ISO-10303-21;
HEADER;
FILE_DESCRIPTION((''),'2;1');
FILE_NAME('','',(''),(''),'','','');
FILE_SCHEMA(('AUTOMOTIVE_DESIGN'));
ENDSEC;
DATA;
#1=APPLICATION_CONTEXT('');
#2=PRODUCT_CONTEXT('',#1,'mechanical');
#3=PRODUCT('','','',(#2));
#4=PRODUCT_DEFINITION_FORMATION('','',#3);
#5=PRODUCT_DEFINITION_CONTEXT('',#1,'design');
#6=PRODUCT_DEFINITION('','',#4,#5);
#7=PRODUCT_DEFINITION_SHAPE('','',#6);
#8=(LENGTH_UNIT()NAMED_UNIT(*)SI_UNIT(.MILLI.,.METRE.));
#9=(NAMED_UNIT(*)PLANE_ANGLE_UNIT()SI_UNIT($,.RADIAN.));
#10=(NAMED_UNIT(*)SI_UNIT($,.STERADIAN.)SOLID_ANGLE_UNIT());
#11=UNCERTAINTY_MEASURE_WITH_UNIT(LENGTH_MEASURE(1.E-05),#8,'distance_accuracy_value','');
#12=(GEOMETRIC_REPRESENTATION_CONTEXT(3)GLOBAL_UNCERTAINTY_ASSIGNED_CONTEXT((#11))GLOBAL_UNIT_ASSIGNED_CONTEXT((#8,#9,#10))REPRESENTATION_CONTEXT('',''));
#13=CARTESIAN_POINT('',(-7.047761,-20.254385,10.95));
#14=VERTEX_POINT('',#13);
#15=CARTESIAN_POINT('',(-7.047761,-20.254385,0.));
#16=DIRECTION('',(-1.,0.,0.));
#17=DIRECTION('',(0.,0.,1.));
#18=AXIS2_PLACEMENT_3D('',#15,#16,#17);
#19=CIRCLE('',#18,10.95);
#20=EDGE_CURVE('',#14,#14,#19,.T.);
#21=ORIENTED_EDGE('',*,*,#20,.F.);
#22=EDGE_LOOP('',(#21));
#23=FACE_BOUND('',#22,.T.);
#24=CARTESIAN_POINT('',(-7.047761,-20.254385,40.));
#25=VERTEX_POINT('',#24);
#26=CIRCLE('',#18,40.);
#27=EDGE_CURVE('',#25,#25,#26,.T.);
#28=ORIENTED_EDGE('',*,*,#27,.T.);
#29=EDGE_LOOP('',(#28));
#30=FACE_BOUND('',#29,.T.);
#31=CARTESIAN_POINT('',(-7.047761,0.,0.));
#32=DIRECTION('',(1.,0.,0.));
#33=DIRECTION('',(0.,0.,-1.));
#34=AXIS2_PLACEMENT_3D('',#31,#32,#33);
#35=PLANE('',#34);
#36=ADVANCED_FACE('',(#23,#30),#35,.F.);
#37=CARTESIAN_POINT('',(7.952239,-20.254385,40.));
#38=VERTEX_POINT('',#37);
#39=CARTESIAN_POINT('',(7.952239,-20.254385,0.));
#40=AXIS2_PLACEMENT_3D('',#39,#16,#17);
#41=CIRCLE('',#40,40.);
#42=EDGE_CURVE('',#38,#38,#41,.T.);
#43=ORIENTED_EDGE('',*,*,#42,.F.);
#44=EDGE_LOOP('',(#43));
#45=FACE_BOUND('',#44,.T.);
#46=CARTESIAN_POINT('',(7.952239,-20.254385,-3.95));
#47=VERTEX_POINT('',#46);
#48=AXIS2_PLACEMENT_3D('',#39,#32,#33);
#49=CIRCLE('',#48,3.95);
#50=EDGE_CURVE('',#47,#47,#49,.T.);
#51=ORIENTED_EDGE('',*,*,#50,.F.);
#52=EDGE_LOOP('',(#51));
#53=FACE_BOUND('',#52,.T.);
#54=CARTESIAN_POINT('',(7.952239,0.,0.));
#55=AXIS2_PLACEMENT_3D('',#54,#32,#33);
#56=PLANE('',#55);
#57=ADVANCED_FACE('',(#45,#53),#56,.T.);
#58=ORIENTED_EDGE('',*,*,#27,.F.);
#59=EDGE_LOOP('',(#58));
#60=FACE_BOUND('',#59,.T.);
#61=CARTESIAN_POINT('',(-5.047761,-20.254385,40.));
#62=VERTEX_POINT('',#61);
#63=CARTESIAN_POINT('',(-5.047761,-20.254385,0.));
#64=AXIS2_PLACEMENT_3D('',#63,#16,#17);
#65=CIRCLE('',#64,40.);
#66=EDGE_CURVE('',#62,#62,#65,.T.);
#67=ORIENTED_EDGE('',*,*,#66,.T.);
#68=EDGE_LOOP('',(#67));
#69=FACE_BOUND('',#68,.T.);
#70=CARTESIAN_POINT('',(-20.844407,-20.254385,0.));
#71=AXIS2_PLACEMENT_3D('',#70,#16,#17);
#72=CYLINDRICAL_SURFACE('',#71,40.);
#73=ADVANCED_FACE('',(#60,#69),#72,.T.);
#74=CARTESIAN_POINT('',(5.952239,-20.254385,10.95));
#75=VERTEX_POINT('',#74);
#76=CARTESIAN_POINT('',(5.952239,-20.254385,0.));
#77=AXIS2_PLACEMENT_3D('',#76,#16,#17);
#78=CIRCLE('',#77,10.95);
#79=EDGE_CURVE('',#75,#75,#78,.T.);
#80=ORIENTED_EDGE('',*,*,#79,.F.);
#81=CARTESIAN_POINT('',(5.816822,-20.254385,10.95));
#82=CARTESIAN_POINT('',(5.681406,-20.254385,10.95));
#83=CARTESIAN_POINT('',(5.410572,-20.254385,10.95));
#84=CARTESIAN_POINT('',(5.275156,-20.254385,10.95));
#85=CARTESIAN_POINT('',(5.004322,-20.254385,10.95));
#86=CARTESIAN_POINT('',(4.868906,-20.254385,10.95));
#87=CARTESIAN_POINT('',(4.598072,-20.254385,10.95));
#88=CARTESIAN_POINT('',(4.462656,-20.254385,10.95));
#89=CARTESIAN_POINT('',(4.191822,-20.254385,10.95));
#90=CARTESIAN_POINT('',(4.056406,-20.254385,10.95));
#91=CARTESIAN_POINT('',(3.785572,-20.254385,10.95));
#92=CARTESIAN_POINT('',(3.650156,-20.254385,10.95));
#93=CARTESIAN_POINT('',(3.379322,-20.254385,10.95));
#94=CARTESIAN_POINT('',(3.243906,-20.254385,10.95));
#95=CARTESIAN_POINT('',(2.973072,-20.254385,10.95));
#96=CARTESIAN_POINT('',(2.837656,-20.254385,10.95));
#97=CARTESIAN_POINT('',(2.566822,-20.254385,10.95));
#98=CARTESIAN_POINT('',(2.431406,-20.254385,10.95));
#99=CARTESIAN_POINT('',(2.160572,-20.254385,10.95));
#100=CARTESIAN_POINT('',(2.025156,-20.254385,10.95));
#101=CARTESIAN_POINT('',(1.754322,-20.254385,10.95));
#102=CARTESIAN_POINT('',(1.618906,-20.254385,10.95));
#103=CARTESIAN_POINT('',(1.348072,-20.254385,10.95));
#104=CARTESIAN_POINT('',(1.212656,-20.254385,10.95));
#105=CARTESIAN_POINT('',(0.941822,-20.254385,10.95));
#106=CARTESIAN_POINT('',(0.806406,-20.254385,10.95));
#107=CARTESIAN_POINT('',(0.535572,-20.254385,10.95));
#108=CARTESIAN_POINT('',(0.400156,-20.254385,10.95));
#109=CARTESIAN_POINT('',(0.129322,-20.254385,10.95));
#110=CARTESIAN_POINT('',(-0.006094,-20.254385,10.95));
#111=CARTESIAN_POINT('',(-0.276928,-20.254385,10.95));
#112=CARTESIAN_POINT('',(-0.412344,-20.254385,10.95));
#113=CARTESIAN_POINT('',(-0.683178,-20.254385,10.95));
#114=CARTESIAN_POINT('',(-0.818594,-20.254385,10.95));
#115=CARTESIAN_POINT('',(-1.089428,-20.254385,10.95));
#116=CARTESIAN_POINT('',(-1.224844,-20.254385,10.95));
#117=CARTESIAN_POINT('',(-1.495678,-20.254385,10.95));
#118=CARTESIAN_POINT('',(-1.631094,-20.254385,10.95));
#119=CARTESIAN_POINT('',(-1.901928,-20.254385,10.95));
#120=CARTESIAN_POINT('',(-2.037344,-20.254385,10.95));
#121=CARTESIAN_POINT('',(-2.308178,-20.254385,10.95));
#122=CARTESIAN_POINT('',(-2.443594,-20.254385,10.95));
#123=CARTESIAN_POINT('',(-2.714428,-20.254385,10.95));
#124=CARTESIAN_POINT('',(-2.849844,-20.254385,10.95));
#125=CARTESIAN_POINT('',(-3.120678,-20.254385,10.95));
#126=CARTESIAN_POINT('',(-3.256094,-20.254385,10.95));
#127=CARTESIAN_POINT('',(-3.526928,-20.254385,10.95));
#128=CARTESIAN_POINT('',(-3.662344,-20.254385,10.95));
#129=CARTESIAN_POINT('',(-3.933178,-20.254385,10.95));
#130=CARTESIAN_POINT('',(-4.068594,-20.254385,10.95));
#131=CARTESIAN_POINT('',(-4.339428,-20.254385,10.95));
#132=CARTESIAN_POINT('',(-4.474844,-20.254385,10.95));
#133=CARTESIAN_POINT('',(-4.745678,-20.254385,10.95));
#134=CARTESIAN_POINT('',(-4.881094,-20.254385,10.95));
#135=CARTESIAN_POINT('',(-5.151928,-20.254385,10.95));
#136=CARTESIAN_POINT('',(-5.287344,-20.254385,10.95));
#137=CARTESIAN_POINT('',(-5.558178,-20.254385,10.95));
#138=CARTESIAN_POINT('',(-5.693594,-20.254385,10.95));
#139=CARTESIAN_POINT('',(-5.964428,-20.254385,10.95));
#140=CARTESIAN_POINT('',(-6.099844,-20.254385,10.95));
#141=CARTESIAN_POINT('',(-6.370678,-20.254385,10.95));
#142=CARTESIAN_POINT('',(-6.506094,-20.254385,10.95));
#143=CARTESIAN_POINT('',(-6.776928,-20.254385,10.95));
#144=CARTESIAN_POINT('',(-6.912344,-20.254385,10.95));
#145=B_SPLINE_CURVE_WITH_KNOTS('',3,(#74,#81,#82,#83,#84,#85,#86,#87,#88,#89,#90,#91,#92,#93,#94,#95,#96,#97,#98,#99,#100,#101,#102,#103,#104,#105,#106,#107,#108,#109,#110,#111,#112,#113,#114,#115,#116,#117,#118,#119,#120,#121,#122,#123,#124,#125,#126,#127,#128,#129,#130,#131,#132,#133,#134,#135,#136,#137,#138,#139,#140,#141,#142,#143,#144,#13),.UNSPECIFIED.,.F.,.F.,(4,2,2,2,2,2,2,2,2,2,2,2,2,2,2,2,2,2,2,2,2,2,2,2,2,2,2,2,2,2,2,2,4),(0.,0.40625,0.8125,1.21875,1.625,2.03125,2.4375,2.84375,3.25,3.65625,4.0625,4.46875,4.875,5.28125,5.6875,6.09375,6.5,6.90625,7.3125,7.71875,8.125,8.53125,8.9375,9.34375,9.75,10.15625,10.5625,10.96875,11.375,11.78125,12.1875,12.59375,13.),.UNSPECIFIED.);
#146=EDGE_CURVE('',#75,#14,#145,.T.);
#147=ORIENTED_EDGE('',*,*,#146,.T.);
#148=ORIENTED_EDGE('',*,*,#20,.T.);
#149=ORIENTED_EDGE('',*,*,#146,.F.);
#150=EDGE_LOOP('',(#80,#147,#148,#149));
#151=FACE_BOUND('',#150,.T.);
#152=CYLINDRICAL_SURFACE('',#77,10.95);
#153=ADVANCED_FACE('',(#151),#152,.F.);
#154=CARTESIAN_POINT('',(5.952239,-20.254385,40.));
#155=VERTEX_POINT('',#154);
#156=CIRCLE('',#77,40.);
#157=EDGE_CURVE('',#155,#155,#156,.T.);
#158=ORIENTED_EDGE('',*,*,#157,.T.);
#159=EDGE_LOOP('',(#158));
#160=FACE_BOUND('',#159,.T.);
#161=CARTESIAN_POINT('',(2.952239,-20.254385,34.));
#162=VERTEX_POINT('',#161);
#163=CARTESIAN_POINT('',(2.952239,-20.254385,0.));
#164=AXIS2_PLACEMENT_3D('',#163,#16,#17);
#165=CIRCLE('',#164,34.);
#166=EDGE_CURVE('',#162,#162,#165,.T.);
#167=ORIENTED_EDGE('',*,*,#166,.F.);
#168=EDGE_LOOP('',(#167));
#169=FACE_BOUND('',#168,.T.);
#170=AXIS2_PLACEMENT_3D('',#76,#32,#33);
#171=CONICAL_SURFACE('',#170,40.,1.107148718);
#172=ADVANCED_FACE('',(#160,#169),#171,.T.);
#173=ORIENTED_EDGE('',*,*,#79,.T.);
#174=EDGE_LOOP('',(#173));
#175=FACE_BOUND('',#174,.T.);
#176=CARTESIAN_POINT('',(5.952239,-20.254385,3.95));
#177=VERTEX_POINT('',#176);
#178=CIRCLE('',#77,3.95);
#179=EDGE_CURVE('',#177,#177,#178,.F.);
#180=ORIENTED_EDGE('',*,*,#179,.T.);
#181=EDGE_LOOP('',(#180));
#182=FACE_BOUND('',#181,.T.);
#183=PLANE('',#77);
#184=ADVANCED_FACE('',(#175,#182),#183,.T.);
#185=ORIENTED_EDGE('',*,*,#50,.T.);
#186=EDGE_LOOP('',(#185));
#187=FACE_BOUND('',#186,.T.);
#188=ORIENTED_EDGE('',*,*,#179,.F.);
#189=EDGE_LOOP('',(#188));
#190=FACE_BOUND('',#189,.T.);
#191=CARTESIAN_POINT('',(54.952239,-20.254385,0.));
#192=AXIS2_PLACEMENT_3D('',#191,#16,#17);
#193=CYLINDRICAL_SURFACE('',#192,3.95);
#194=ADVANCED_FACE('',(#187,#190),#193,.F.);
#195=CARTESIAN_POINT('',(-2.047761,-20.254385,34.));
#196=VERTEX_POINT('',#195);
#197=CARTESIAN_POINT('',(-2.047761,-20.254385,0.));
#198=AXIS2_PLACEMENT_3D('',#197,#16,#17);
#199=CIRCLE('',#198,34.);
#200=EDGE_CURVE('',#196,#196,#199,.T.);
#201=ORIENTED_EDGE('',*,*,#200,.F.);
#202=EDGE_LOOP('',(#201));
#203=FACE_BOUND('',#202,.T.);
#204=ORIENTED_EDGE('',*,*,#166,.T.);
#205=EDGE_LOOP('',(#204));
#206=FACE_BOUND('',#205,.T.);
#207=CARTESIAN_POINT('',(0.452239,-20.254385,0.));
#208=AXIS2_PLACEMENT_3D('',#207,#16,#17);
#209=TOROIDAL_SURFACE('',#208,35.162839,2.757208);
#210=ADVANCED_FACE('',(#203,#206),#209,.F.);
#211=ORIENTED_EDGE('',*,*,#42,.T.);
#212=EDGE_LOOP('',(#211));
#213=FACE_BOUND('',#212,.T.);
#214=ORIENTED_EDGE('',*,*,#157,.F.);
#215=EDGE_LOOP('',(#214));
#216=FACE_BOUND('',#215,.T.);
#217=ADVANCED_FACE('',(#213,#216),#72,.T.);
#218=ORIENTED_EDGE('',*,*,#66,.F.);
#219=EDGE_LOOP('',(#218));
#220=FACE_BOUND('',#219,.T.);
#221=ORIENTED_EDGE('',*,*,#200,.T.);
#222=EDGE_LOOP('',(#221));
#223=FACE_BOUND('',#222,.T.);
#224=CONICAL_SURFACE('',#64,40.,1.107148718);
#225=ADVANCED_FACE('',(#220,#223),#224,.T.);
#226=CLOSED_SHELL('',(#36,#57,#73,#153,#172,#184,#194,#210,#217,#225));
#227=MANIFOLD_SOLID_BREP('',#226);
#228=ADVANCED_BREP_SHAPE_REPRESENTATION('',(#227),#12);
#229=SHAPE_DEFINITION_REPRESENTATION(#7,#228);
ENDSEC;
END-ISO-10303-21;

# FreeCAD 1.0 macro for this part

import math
import FreeCAD as App
import Part
import Sketcher
from FreeCAD import Vector

doc = App.newDocument("Part")
body = doc.addObject("PartDesign::Body", "Body")

# Sketch on XY plane
sketch1 = doc.addObject("Sketcher::SketchObject", "Sketch")
body.addObject(sketch1)
sketch1.AttachmentSupport = (doc.XY_Plane, [""])
sketch1.MapMode = "FlatFace"
sketch1.addGeometry(Part.LineSegment(Vector(6, 19.7, 0), Vector(3, 13.7, 0)), False)
sketch1.addGeometry(Part.ArcOfCircle(Part.Circle(Vector(0.5, 14.9, 0), Vector(0, 0, 1), 2.8), math.radians(-155), math.radians(-25)), False)
sketch1.addGeometry(Part.LineSegment(Vector(-2, 13.7, 0), Vector(-5, 19.7, 0)), False)
sketch1.addGeometry(Part.LineSegment(Vector(-5, 19.7, 0), Vector(-7, 19.7, 0)), False)
sketch1.addGeometry(Part.LineSegment(Vector(-7, 19.7, 0), Vector(-7, -20.3, 0)), False)
sketch1.addGeometry(Part.LineSegment(Vector(-7, -20.3, 0), Vector(8, -20.3, 0)), False)
sketch1.addGeometry(Part.LineSegment(Vector(8, -20.3, 0), Vector(8, 19.7, 0)), False)
sketch1.addGeometry(Part.LineSegment(Vector(8, 19.7, 0), Vector(6, 19.7, 0)), False)
sketch1.addGeometry(Part.LineSegment(Vector(-7, -20.3, 0), Vector(8, -20.3, 0)), True)  # axis
sketch1.addConstraint(Sketcher.Constraint("Coincident", 0, 2, 1, 2))
sketch1.addConstraint(Sketcher.Constraint("Coincident", 1, 1, 2, 1))
sketch1.addConstraint(Sketcher.Constraint("Coincident", 2, 2, 3, 1))
sketch1.addConstraint(Sketcher.Constraint("Coincident", 3, 2, 4, 1))
sketch1.addConstraint(Sketcher.Constraint("Coincident", 4, 2, 5, 1))
sketch1.addConstraint(Sketcher.Constraint("Coincident", 5, 2, 6, 1))
sketch1.addConstraint(Sketcher.Constraint("Coincident", 6, 2, 7, 1))
sketch1.addConstraint(Sketcher.Constraint("Coincident", 7, 2, 0, 1))
sketch1.addConstraint(Sketcher.Constraint("Horizontal", 3))
sketch1.addConstraint(Sketcher.Constraint("Vertical", 4))
sketch1.addConstraint(Sketcher.Constraint("Horizontal", 5))
sketch1.addConstraint(Sketcher.Constraint("Vertical", 6))
sketch1.addConstraint(Sketcher.Constraint("Horizontal", 7))
sketch1.addConstraint(Sketcher.Constraint("Horizontal", 8))
sketch1.addConstraint(Sketcher.Constraint("Coincident", 8, 1, 4, 2))
sketch1.addConstraint(Sketcher.Constraint("Horizontal", 0, 2, 1, 1))
sketch1.addConstraint(Sketcher.Constraint("Horizontal", 3, 2, 6, 2))
sketch1.addConstraint(Sketcher.Constraint("Vertical", 6, 2, 8, 2))
sketch1.addConstraint(Sketcher.Constraint("Equal", 3, 7))
sketch1.addConstraint(Sketcher.Constraint("Equal", 0, 2))
sketch1.addConstraint(Sketcher.Constraint("DistanceX", 3, 2, 3, 1, 2.0))
sketch1.addConstraint(Sketcher.Constraint("DistanceX", 5, 1, 5, 2, 15.0))
sketch1.addConstraint(Sketcher.Constraint("DistanceY", 4, 2, 4, 1, 40.0))
sketch1.addConstraint(Sketcher.Constraint("DistanceX", 1, 1, 0, 2, 5.0))
sketch1.addConstraint(Sketcher.Constraint("DistanceY", 1, 1, 2, 2, 6.0))
sketch1.addConstraint(Sketcher.Constraint("Radius", 1, 2.757208))
sketch1.addConstraint(Sketcher.Constraint("DistanceX", -1, 1, 1, 3, 0.452239))
sketch1.addConstraint(Sketcher.Constraint("DistanceY", -1, 1, 1, 3, 14.908454))
revolution = doc.addObject("PartDesign::Revolution", "Revolution")
body.addObject(revolution)
revolution.Profile = sketch1
revolution.ReferenceAxis = (sketch1, ["Axis0"])
revolution.Angle = 360

# Sketch on YZ plane
sketch2 = doc.addObject("Sketcher::SketchObject", "Sketch001")
body.addObject(sketch2)
sketch2.AttachmentSupport = (doc.YZ_Plane, [""])
sketch2.MapMode = "FlatFace"
sketch2.AttachmentOffset = App.Placement(Vector(0, 0, -7.047761), App.Rotation())
sketch2.addGeometry(Part.Circle(Vector(-20.3, 0, 0), Vector(0, 0, 1), 4), False)
sketch2.addConstraint(Sketcher.Constraint("PointOnObject", 0, 3, -1))
sketch2.addConstraint(Sketcher.Constraint("Diameter", 0, 7.9))
sketch2.addConstraint(Sketcher.Constraint("DistanceX", 0, 3, -1, 1, 20.254385))
pocket1 = doc.addObject("PartDesign::Pocket", "Pocket")
body.addObject(pocket1)
pocket1.Profile = sketch2
pocket1.Length = 62
pocket1.Reversed = True

# Sketch on YZ plane
sketch3 = doc.addObject("Sketcher::SketchObject", "Sketch002")
body.addObject(sketch3)
sketch3.AttachmentSupport = (doc.YZ_Plane, [""])
sketch3.MapMode = "FlatFace"
sketch3.AttachmentOffset = App.Placement(Vector(0, 0, -7.047761), App.Rotation())
sketch3.addGeometry(Part.Circle(Vector(-20, 0, 0), Vector(0, 0, 1), 11), False)
sketch3.addConstraint(Sketcher.Constraint("PointOnObject", 0, 3, -1))
sketch3.addConstraint(Sketcher.Constraint("Diameter", 0, 21.9))
sketch3.addConstraint(Sketcher.Constraint("DistanceX", 0, 3, -1, 1, 20.254385))
pocket2 = doc.addObject("PartDesign::Pocket", "Pocket001")
body.addObject(pocket2)
pocket2.Profile = sketch3
pocket2.Length = 13
pocket2.Reversed = True

doc.recompute()
